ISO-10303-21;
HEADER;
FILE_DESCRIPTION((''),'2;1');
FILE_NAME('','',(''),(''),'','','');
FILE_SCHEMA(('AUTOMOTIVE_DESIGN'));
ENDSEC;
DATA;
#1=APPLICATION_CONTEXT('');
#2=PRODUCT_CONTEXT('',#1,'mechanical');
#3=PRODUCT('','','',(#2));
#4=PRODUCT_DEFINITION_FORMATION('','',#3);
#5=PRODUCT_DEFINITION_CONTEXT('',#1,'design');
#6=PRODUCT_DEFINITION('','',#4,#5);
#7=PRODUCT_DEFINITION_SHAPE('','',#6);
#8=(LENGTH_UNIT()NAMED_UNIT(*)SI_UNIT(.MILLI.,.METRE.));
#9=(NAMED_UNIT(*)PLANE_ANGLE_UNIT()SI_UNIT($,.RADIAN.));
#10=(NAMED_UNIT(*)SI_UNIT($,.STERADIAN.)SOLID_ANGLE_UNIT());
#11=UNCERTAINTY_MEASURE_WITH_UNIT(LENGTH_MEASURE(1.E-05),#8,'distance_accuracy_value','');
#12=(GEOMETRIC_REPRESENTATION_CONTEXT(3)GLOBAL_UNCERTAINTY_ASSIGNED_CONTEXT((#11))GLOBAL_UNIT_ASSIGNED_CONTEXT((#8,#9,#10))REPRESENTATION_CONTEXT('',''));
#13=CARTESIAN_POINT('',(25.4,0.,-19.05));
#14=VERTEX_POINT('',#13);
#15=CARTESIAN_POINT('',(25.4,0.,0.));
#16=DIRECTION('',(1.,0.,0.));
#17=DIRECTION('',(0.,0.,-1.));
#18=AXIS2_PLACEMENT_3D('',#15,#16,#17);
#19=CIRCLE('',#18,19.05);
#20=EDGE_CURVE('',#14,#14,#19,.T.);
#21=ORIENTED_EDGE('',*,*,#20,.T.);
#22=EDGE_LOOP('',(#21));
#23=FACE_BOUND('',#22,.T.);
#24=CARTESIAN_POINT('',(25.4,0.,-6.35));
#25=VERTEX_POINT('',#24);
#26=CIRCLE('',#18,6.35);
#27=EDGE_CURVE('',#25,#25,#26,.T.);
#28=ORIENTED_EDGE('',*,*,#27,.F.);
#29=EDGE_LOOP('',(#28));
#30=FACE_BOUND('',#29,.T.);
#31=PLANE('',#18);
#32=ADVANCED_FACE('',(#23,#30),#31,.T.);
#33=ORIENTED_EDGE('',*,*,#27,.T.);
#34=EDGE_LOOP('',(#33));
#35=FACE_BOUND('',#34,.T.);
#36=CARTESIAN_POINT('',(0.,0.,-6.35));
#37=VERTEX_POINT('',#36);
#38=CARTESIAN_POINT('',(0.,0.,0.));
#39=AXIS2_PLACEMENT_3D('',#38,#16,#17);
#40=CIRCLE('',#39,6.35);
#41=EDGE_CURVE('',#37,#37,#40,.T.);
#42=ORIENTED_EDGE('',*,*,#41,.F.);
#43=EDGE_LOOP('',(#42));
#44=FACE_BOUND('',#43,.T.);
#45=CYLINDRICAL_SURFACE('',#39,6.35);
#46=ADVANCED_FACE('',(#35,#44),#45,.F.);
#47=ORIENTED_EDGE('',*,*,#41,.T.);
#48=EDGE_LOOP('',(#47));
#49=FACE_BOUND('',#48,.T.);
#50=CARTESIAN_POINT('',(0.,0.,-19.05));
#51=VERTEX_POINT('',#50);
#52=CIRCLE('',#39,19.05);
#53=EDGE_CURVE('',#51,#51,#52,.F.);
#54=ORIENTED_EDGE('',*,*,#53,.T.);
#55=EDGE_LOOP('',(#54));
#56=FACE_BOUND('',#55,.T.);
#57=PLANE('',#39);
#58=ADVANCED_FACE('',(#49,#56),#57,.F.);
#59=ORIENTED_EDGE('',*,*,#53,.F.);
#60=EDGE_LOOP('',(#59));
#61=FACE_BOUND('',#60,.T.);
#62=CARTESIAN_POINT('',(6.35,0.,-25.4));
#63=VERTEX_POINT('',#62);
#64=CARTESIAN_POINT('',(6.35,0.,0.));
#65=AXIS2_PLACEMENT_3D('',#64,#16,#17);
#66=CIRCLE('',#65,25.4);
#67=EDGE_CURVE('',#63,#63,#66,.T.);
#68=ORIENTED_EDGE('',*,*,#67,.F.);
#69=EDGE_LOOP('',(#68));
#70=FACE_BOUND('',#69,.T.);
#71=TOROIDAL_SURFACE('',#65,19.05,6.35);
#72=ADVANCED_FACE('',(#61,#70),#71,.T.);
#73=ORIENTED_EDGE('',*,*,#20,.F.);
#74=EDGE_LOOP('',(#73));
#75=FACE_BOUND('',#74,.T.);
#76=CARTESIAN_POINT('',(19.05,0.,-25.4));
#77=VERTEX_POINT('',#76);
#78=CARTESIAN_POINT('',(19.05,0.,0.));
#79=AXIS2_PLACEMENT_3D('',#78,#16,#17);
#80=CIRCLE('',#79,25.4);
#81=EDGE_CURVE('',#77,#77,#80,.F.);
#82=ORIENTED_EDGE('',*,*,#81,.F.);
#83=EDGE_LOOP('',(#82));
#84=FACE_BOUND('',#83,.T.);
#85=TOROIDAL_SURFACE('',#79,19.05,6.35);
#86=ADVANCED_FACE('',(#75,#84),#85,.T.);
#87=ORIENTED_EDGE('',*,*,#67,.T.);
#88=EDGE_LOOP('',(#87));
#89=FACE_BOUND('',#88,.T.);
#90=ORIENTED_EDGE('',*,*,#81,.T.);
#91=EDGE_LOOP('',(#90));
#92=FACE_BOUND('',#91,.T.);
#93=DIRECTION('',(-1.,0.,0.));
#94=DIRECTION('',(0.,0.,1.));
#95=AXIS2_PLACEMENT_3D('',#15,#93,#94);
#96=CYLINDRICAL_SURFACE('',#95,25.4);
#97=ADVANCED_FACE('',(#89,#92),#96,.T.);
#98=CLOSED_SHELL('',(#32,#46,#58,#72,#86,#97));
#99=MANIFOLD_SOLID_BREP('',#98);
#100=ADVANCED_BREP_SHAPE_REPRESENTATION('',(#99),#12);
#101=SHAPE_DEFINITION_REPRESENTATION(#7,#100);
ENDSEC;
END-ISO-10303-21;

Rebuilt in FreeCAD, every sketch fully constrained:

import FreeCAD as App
import Part
import Sketcher

V = App.Vector
Q = App.Units.Quantity


def edges_at(feature, points):
    """Names of the edges that pass closest to the given points."""
    edges = feature.Shape.Edges
    near = lambda p: min(range(len(edges)), key=lambda i: edges[i].distToShape(Part.Vertex(*p))[0])
    return sorted({f"Edge{near(p) + 1}" for p in points})

doc = App.newDocument("Part")
params = doc.addObject("Spreadsheet::Sheet", "Params")
for row, (alias, value) in enumerate([
    ("sketch1_diameter", "2 in"),
    ("pad1_length", "1 in"),
    ("fillet_radius", "0.25 in"),
    ("sketch2_diameter", "0.5 in"),
    ("pocket1_length", "1 in"),
], start=1):
    params.set(f"A{row}", alias)
    params.set(f"B{row}", "=" + value)
    params.setAlias(f"B{row}", alias)

body = doc.addObject("PartDesign::Body", "Body")

# Sketch on YZ plane
sketch1 = body.newObject("Sketcher::SketchObject", "Sketch")
sketch1.AttachmentSupport = (doc.getObject("YZ_Plane"), [""])
sketch1.MapMode = "FlatFace"
sketch1.addGeometry(Part.Circle(V(0, 0, 0), V(0, 0, 1), 25), False)
sketch1.addConstraint([
    Sketcher.Constraint("Coincident", 0, 3, -1, 1),
    Sketcher.Constraint("Diameter", 0, Q("2 in")),
])
sketch1.setExpression("Constraints[1]", "Params.sketch1_diameter")
pad1 = body.newObject("PartDesign::Pad", "Pad")
pad1.Profile = sketch1
pad1.setExpression("Length", "Params.pad1_length")
doc.recompute()

fillet = body.newObject("PartDesign::Fillet", "Fillet")
fillet.Base = (pad1, edges_at(pad1, [(0, 0, 25.4), (25.4, 0, 25.4)]))
fillet.setExpression("Radius", "Params.fillet_radius")

# Sketch on YZ plane
sketch2 = body.newObject("Sketcher::SketchObject", "Sketch001")
sketch2.AttachmentSupport = (doc.getObject("YZ_Plane"), [""])
sketch2.MapMode = "FlatFace"
sketch2.AttachmentOffset = App.Placement(V(0, 0, 1 * 25.4), App.Rotation())
sketch2.addGeometry(Part.Circle(V(0, 0, 0), V(0, 0, 1), 6), False)
sketch2.addConstraint([
    Sketcher.Constraint("Coincident", 0, 3, -1, 1),
    Sketcher.Constraint("Diameter", 0, Q("0.5 in")),
])
sketch2.setExpression("Constraints[1]", "Params.sketch2_diameter")
pocket1 = body.newObject("PartDesign::Pocket", "Pocket")
pocket1.Profile = sketch2
pocket1.setExpression("Length", "Params.pocket1_length")

doc.recompute()
